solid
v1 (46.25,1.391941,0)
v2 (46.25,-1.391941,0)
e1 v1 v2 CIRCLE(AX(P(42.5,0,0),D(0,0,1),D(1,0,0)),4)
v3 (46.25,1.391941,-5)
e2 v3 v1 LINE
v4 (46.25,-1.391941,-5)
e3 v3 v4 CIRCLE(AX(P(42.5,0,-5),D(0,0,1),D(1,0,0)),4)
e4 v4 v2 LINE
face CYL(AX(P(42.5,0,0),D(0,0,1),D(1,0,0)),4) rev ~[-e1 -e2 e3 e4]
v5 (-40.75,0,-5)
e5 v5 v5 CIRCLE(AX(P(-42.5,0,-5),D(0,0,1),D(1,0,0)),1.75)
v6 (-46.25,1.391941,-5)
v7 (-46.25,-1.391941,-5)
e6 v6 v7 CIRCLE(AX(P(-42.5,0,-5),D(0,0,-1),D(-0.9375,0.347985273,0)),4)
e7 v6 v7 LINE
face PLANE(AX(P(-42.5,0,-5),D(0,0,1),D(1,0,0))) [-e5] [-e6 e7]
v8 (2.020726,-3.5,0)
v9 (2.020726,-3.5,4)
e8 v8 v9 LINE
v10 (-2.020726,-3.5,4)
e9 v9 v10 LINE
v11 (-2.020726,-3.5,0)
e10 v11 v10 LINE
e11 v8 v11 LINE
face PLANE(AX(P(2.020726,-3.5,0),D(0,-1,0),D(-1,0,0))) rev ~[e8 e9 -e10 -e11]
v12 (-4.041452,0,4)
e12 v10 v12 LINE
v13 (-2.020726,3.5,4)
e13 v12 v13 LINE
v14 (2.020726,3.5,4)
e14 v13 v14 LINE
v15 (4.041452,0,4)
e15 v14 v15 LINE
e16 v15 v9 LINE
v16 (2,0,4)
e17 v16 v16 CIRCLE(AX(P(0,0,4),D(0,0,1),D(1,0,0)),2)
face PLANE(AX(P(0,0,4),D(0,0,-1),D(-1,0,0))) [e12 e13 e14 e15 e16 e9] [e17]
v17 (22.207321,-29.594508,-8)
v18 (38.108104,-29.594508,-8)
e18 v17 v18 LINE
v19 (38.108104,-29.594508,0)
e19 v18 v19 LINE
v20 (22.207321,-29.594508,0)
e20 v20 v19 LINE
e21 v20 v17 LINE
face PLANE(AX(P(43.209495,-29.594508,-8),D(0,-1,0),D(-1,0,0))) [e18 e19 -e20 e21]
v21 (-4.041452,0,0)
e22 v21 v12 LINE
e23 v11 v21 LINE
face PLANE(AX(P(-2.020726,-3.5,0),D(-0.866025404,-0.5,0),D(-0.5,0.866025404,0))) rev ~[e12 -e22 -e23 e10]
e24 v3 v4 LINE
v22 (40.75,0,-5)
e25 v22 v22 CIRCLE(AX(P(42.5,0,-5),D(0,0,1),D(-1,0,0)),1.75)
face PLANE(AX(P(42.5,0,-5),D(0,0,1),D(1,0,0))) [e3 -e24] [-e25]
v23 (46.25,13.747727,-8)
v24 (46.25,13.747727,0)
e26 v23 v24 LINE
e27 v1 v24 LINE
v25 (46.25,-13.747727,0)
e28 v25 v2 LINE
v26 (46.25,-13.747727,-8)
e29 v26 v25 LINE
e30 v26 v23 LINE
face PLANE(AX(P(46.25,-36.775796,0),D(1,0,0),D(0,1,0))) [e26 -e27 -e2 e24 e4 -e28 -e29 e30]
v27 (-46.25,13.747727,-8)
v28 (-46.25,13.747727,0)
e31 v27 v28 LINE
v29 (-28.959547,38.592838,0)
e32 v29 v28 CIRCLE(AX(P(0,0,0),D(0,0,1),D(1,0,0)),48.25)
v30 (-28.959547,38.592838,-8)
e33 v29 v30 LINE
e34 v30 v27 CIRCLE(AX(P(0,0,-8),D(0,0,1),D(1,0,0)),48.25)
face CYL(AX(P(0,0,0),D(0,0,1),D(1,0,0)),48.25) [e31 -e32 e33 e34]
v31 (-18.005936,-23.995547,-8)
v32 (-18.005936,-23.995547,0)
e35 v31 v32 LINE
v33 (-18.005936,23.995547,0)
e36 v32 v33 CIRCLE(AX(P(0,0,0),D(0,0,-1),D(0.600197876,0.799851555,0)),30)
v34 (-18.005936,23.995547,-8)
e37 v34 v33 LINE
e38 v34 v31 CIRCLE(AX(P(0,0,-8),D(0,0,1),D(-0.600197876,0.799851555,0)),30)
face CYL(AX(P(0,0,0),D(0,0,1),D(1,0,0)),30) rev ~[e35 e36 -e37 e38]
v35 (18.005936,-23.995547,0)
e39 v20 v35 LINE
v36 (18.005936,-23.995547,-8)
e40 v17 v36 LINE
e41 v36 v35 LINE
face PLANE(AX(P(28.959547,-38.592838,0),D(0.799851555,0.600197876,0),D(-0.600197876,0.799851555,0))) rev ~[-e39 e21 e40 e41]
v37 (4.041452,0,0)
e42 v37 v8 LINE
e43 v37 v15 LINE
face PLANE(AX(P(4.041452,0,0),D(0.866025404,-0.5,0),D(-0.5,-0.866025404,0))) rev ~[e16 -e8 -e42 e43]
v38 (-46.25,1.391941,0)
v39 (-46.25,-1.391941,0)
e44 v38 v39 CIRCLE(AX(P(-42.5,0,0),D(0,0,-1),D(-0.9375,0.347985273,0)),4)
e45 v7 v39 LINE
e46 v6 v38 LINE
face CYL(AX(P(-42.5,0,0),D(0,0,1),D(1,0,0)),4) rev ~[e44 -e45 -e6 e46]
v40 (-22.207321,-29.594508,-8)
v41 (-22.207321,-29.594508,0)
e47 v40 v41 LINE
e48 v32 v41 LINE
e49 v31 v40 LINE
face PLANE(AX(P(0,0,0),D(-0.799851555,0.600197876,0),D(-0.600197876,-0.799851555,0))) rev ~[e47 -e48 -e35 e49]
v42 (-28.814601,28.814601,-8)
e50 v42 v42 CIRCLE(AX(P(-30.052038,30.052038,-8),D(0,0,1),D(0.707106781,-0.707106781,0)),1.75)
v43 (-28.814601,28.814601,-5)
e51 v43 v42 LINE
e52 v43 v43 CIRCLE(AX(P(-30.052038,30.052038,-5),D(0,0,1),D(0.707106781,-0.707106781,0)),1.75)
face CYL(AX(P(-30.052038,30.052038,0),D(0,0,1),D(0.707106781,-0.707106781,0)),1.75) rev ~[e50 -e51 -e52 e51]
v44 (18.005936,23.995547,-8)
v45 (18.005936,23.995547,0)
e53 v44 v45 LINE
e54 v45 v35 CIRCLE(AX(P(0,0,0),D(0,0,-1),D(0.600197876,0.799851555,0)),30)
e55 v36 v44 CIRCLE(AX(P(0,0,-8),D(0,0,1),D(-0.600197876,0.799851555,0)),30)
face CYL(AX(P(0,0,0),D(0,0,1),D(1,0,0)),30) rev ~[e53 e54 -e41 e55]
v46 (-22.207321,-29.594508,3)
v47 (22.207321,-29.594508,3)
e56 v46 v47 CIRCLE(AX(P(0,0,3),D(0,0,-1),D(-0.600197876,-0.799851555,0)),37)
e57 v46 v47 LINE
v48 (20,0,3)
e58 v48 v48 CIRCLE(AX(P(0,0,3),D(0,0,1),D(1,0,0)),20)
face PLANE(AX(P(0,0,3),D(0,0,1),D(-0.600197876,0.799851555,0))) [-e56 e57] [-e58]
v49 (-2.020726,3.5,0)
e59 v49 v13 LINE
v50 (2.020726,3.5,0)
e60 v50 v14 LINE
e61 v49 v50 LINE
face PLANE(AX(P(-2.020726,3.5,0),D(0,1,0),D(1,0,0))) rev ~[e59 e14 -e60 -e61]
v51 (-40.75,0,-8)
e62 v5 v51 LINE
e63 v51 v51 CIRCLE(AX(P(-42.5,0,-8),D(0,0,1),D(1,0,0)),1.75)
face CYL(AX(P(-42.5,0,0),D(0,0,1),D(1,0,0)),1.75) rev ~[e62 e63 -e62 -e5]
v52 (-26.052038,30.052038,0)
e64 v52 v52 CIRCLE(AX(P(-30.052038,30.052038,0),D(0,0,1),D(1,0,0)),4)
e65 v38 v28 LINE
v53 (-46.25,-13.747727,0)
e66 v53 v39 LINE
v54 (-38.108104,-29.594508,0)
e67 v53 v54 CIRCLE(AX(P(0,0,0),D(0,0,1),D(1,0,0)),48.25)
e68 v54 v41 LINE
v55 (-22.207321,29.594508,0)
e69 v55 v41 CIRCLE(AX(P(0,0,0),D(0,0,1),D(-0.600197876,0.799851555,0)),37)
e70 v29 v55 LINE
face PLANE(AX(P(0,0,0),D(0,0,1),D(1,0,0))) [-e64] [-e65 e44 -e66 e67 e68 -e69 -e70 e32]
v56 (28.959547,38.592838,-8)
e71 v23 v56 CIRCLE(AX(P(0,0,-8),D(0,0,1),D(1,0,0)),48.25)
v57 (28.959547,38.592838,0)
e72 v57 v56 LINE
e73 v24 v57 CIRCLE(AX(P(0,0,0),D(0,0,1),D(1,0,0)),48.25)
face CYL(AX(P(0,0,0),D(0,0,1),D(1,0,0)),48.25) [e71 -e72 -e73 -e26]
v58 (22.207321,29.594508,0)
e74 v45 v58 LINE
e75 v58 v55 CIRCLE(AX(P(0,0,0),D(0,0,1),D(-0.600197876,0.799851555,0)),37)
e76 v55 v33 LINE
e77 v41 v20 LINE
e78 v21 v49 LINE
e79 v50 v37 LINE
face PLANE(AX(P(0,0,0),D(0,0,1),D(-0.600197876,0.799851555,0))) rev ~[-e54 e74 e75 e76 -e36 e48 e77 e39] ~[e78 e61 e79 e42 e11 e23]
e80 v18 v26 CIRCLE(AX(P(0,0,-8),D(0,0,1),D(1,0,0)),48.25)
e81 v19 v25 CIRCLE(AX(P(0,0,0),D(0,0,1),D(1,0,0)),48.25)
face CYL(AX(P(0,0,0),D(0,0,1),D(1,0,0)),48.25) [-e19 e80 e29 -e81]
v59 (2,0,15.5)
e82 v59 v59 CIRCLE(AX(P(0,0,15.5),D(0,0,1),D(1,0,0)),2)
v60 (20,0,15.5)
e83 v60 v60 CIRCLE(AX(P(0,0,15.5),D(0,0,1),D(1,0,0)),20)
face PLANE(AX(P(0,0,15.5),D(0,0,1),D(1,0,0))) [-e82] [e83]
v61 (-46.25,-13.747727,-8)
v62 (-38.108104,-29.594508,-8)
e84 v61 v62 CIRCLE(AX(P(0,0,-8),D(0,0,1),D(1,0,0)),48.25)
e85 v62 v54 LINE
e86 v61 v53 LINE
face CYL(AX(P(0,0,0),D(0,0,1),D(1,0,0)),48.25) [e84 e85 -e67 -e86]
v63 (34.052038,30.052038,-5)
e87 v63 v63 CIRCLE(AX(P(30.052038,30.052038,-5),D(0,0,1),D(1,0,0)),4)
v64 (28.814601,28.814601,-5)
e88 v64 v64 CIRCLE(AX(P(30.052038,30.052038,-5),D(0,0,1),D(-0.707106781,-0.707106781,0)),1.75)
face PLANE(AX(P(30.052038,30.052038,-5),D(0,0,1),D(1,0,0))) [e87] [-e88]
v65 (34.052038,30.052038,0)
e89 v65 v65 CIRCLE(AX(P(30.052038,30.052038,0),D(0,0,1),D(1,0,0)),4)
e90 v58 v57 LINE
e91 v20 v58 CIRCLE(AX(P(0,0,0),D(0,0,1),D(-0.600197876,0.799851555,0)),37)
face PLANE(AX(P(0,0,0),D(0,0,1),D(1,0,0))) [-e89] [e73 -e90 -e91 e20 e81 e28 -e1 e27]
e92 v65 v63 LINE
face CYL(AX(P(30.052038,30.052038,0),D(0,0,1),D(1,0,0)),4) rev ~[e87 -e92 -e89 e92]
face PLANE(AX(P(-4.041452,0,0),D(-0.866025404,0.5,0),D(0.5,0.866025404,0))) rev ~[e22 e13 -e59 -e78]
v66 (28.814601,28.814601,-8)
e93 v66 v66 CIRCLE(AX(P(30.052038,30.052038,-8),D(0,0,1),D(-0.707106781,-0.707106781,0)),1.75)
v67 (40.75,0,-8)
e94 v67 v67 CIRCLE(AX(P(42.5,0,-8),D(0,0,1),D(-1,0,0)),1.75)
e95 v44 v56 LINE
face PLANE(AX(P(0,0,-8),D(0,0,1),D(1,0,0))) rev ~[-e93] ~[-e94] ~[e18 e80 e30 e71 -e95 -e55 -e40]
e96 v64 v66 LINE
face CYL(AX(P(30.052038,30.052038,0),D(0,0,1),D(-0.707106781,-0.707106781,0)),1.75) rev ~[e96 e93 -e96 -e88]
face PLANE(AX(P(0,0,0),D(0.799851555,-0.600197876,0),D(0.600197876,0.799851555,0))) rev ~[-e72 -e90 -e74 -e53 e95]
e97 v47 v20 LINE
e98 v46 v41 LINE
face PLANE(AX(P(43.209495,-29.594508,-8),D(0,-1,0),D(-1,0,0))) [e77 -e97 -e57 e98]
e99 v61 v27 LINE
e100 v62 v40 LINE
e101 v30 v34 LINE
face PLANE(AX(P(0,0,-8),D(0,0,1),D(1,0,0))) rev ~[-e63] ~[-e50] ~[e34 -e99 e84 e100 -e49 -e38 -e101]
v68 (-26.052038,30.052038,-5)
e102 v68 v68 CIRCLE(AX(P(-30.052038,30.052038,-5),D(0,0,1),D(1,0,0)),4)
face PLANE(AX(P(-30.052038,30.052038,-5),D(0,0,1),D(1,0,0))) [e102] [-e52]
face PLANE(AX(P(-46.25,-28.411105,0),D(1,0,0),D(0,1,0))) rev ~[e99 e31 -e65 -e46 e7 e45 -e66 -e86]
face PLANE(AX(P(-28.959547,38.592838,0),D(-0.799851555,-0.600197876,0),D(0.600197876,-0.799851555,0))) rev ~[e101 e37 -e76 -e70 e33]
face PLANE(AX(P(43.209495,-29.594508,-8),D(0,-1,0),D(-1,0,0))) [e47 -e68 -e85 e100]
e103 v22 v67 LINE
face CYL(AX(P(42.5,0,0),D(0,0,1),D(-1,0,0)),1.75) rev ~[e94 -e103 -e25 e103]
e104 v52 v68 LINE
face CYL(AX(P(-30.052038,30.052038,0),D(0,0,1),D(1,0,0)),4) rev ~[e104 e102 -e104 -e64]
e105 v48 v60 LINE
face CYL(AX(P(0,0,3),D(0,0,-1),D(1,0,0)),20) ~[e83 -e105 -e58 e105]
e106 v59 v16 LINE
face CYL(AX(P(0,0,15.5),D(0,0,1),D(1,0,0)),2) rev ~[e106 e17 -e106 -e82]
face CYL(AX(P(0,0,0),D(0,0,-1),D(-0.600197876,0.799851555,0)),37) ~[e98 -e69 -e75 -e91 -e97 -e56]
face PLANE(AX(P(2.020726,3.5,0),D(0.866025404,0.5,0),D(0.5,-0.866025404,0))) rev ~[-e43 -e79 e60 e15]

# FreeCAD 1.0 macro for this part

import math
import FreeCAD as App
import Part
import Sketcher

V = App.Vector
Q = App.Units.Quantity

doc = App.newDocument("Part")
body = doc.addObject("PartDesign::Body", "Body")
body.AllowCompound = True

# Sketch on XY plane
sketch1 = doc.addObject("Sketcher::SketchObject", "Sketch")
body.addObject(sketch1)
sketch1.AttachmentSupport = (doc.XY_Plane, [""])
sketch1.MapMode = "FlatFace"
sketch1.addGeometry(Part.Circle(V(0, 0, 0), V(0, 0, 1), 48.25), False)
sketch1.addConstraint([
    Sketcher.Constraint("Coincident", 0, 3, -1, 1),
    Sketcher.Constraint("Diameter", 0, Q("96.5 mm")),
])
pad1 = doc.addObject("PartDesign::Pad", "Pad")
body.addObject(pad1)
pad1.Profile = sketch1
pad1.Length = 8
pad1.Reversed = True

# Sketch on XY plane
sketch2 = doc.addObject("Sketcher::SketchObject", "Sketch001")
body.addObject(sketch2)
sketch2.AttachmentSupport = (doc.XY_Plane, [""])
sketch2.MapMode = "FlatFace"
sketch2.addGeometry([
    Part.LineSegment(V(-63.412038, 28.411105, 0), V(-63.412038, -28.411105, 0)),  # 0
    Part.LineSegment(V(-63.412038, -28.411105, 0), V(-46.25, -28.411105, 0)),  # 1
    Part.LineSegment(V(-46.25, -28.411105, 0), V(-46.25, 28.411105, 0)),  # 2
    Part.LineSegment(V(-46.25, 28.411105, 0), V(-63.412038, 28.411105, 0)),  # 3
    Part.LineSegment(V(46.25, 28.411105, 0), V(46.25, -36.775796, 0)),  # 4
    Part.LineSegment(V(46.25, -36.775796, 0), V(62.402507, -36.775796, 0)),  # 5
    Part.LineSegment(V(62.402507, -36.775796, 0), V(62.402507, 28.411105, 0)),  # 6
    Part.LineSegment(V(62.402507, 28.411105, 0), V(46.25, 28.411105, 0)),  # 7
], False)
sketch2.addConstraint([
    Sketcher.Constraint("Coincident", 0, 2, 1, 1),
    Sketcher.Constraint("Coincident", 1, 2, 2, 1),
    Sketcher.Constraint("Coincident", 2, 2, 3, 1),
    Sketcher.Constraint("Coincident", 3, 2, 0, 1),
    Sketcher.Constraint("Coincident", 4, 2, 5, 1),
    Sketcher.Constraint("Coincident", 5, 2, 6, 1),
    Sketcher.Constraint("Coincident", 6, 2, 7, 1),
    Sketcher.Constraint("Coincident", 7, 2, 4, 1),
    Sketcher.Constraint("Vertical", 0),
    Sketcher.Constraint("Horizontal", 1),
    Sketcher.Constraint("Vertical", 2),
    Sketcher.Constraint("Horizontal", 3),
    Sketcher.Constraint("Vertical", 4),
    Sketcher.Constraint("Horizontal", 5),
    Sketcher.Constraint("Vertical", 6),
    Sketcher.Constraint("Horizontal", 7),
    Sketcher.Constraint("Symmetric", 1, 2, 7, 2, -1, 1),
    Sketcher.Constraint("Horizontal", 3, 2, 6, 2),
    Sketcher.Constraint("DistanceX", 1, 2, 4, 2, Q("92.5 mm")),
    Sketcher.Constraint("DistanceY", 4, 2, 4, 1, Q("65.186901 mm")),
    Sketcher.Constraint("DistanceX", 1, 1, 1, 2, Q("17.162038 mm")),
    Sketcher.Constraint("DistanceY", 0, 2, 0, 1, Q("56.82221 mm")),
    Sketcher.Constraint("DistanceX", 5, 1, 5, 2, Q("16.152507 mm")),
])
pocket1 = doc.addObject("PartDesign::Pocket", "Pocket")
body.addObject(pocket1)
pocket1.Profile = sketch2
pocket1.Length = 8

# Sketch on XY plane
sketch3 = doc.addObject("Sketcher::SketchObject", "Sketch002")
body.addObject(sketch3)
sketch3.AttachmentSupport = (doc.XY_Plane, [""])
sketch3.MapMode = "FlatFace"
sketch3.addGeometry(Part.Circle(V(0, 0, 0), V(0, 0, 1), 30), False)
sketch3.addConstraint([
    Sketcher.Constraint("Coincident", 0, 3, -1, 1),
    Sketcher.Constraint("Diameter", 0, Q("60 mm")),
])
pocket2 = doc.addObject("PartDesign::Pocket", "Pocket001")
body.addObject(pocket2)
pocket2.Profile = sketch3
pocket2.Length = 8

# Sketch on XY plane
sketch4 = doc.addObject("Sketcher::SketchObject", "Sketch003")
body.addObject(sketch4)
sketch4.AttachmentSupport = (doc.XY_Plane, [""])
sketch4.MapMode = "FlatFace"
sketch4.addGeometry(Part.Circle(V(-42.5, 0, 0), V(0, 0, 1), 1.75), False)
sketch4.addConstraint([
    Sketcher.Constraint("PointOnObject", 0, 3, -1),
    Sketcher.Constraint("Diameter", 0, Q("3.5 mm")),
    Sketcher.Constraint("DistanceX", 0, 3, -1, 1, Q("42.5 mm")),
])
pocket3 = doc.addObject("PartDesign::Pocket", "Pocket002")
body.addObject(pocket3)
pocket3.Profile = sketch4
pocket3.Length = 10
doc.recompute()

polarpattern = doc.addObject("PartDesign::PolarPattern", "PolarPattern")
body.addObject(polarpattern)
polarpattern.Originals = [pocket3]
polarpattern.Axis = (doc.Z_Axis, [""])
polarpattern.Angle = 360
polarpattern.Occurrences = 8
body.Tip = polarpattern

# Sketch on XY plane
sketch5 = doc.addObject("Sketcher::SketchObject", "Sketch004")
body.addObject(sketch5)
sketch5.AttachmentSupport = (doc.XY_Plane, [""])
sketch5.MapMode = "FlatFace"
sketch5.addGeometry([
    Part.LineSegment(V(-28.959547, 38.592838, 0), V(0, 0, 0)),
    Part.LineSegment(V(0, 0, 0), V(28.959547, 38.592838, 0)),
    Part.ArcOfCircle(Part.Circle(V(0, 0, 0), V(0, 0, 1), 48.25), math.radians(53.115929), math.radians(126.884071)),
], False)
sketch5.addConstraint([
    Sketcher.Constraint("Coincident", 0, 2, 1, 1),
    Sketcher.Constraint("Coincident", 1, 2, 2, 1),
    Sketcher.Constraint("Coincident", 2, 2, 0, 1),
    Sketcher.Constraint("Coincident", 2, 3, -1, 1),
    Sketcher.Constraint("Coincident", 0, 2, -1, 1),
    Sketcher.Constraint("Horizontal", 1, 2, 2, 2),
    Sketcher.Constraint("Radius", 2, Q("48.25 mm")),
    Sketcher.Constraint("DistanceX", -1, 1, 1, 2, Q("28.959547 mm")),
])
pocket4 = doc.addObject("PartDesign::Pocket", "Pocket003")
body.addObject(pocket4)
pocket4.Profile = sketch5
pocket4.Length = 10
doc.recompute()

polarpattern2 = doc.addObject("PartDesign::PolarPattern", "PolarPattern001")
body.addObject(polarpattern2)
polarpattern2.Originals = [pocket4]
polarpattern2.Axis = (doc.Z_Axis, [""])
polarpattern2.Angle = 360
polarpattern2.Occurrences = 2
body.Tip = polarpattern2

# Sketch on XY plane
sketch6 = doc.addObject("Sketcher::SketchObject", "Sketch005")
body.addObject(sketch6)
sketch6.AttachmentSupport = (doc.XY_Plane, [""])
sketch6.MapMode = "FlatFace"
sketch6.addGeometry([
    Part.Circle(V(42.5, 0, 0), V(0, 0, 1), 4),
    Part.Circle(V(30.052038, 30.052038, 0), V(0, 0, 1), 4),
], False)
sketch6.addConstraint([
    Sketcher.Constraint("Equal", 0, 1),
    Sketcher.Constraint("PointOnObject", 0, 3, -1),
    Sketcher.Constraint("Diameter", 0, Q("8 mm")),
    Sketcher.Constraint("DistanceX", -1, 1, 0, 3, Q("42.5 mm")),
    Sketcher.Constraint("DistanceX", -1, 1, 1, 3, Q("30.052038 mm")),
    Sketcher.Constraint("DistanceY", -1, 1, 1, 3, Q("30.052038 mm")),
])
pocket5 = doc.addObject("PartDesign::Pocket", "Pocket004")
body.addObject(pocket5)
pocket5.Profile = sketch6
pocket5.Length = 5

# Sketch on XY plane
sketch7 = doc.addObject("Sketcher::SketchObject", "Sketch006")
body.addObject(sketch7)
sketch7.AttachmentSupport = (doc.XY_Plane, [""])
sketch7.MapMode = "FlatFace"
sketch7.addGeometry(Part.Circle(V(0, 0, 0), V(0, 0, 1), 37), False)
sketch7.addConstraint([
    Sketcher.Constraint("Coincident", 0, 3, -1, 1),
    Sketcher.Constraint("Diameter", 0, Q("74 mm")),
])
pad2 = doc.addObject("PartDesign::Pad", "Pad001")
body.addObject(pad2)
pad2.Profile = sketch7
pad2.Length = 3

# Sketch on XY plane
sketch8 = doc.addObject("Sketcher::SketchObject", "Sketch007")
body.addObject(sketch8)
sketch8.AttachmentSupport = (doc.XY_Plane, [""])
sketch8.MapMode = "FlatFace"
sketch8.AttachmentOffset = App.Placement(V(0, 0, 3), App.Rotation())
sketch8.addGeometry(Part.Circle(V(0, 0, 0), V(0, 0, 1), 20), False)
sketch8.addConstraint([
    Sketcher.Constraint("Coincident", 0, 3, -1, 1),
    Sketcher.Constraint("Diameter", 0, Q("40 mm")),
])
pad3 = doc.addObject("PartDesign::Pad", "Pad002")
body.addObject(pad3)
pad3.Profile = sketch8
pad3.Length = 12.5

# Sketch on XY plane
sketch9 = doc.addObject("Sketcher::SketchObject", "Sketch008")
body.addObject(sketch9)
sketch9.AttachmentSupport = (doc.XY_Plane, [""])
sketch9.MapMode = "FlatFace"
sketch9.AttachmentOffset = App.Placement(V(0, 0, 15.5), App.Rotation())
sketch9.addGeometry(Part.Circle(V(0, 0, 0), V(0, 0, 1), 2), False)
sketch9.addConstraint([
    Sketcher.Constraint("Coincident", 0, 3, -1, 1),
    Sketcher.Constraint("Diameter", 0, Q("4 mm")),
])
pocket6 = doc.addObject("PartDesign::Pocket", "Pocket005")
body.addObject(pocket6)
pocket6.Profile = sketch9
pocket6.Length = 38

# Sketch on XY plane
sketch10 = doc.addObject("Sketcher::SketchObject", "Sketch009")
body.addObject(sketch10)
sketch10.AttachmentSupport = (doc.XY_Plane, [""])
sketch10.MapMode = "FlatFace"
sketch10.addGeometry([
    Part.LineSegment(V(2.020726, -3.5, 0), V(-2.020726, -3.5, 0)),  # 0
    Part.LineSegment(V(-2.020726, -3.5, 0), V(-4.041452, 0, 0)),  # 1
    Part.LineSegment(V(-4.041452, 0, 0), V(-2.020726, 3.5, 0)),  # 2
    Part.LineSegment(V(-2.020726, 3.5, 0), V(2.020726, 3.5, 0)),  # 3
    Part.LineSegment(V(2.020726, 3.5, 0), V(4.041452, 0, 0)),  # 4
    Part.LineSegment(V(4.041452, 0, 0), V(2.020726, -3.5, 0)),  # 5
], False)
sketch10.addConstraint([
    Sketcher.Constraint("Coincident", 0, 2, 1, 1),
    Sketcher.Constraint("Coincident", 1, 2, 2, 1),
    Sketcher.Constraint("Coincident", 2, 2, 3, 1),
    Sketcher.Constraint("Coincident", 3, 2, 4, 1),
    Sketcher.Constraint("Coincident", 4, 2, 5, 1),
    Sketcher.Constraint("Coincident", 5, 2, 0, 1),
    Sketcher.Constraint("Horizontal", 0),
    Sketcher.Constraint("Horizontal", 3),
    Sketcher.Constraint("Symmetric", 0, 2, 3, 2, -1, 1),
    Sketcher.Constraint("Symmetric", 1, 2, 4, 2, -1, 1),
    Sketcher.Constraint("PointOnObject", 1, 2, -1),
    Sketcher.Constraint("Parallel", 2, 5),
    Sketcher.Constraint("Vertical", 0, 2, 2, 2),
    Sketcher.Constraint("Angle", 1, Q("120 deg")),
    Sketcher.Constraint("DistanceY", 0, 2, 2, 2, Q("7 mm")),
    Sketcher.Constraint("DistanceX", 0, 2, 0, 1, Q("4.041452 mm")),
])
pocket7 = doc.addObject("PartDesign::Pocket", "Pocket006")
body.addObject(pocket7)
pocket7.Profile = sketch10
pocket7.Length = 4
pocket7.Reversed = True

# Sketch on XY plane
sketch11 = doc.addObject("Sketcher::SketchObject", "Sketch010")
body.addObject(sketch11)
sketch11.AttachmentSupport = (doc.XY_Plane, [""])
sketch11.MapMode = "FlatFace"
sketch11.AttachmentOffset = App.Placement(V(0, 0, -8), App.Rotation())
sketch11.addGeometry([
    Part.LineSegment(V(43.209495, -29.594508, 0), V(43.209495, -51.710199, 0)),
    Part.LineSegment(V(43.209495, -51.710199, 0), V(-48.394051, -51.710199, 0)),
    Part.LineSegment(V(-48.394051, -51.710199, 0), V(-48.394051, -29.594508, 0)),
    Part.LineSegment(V(-48.394051, -29.594508, 0), V(43.209495, -29.594508, 0)),
], False)
sketch11.addConstraint([
    Sketcher.Constraint("Coincident", 0, 2, 1, 1),
    Sketcher.Constraint("Coincident", 1, 2, 2, 1),
    Sketcher.Constraint("Coincident", 2, 2, 3, 1),
    Sketcher.Constraint("Coincident", 3, 2, 0, 1),
    Sketcher.Constraint("Vertical", 0),
    Sketcher.Constraint("Horizontal", 1),
    Sketcher.Constraint("Vertical", 2),
    Sketcher.Constraint("Horizontal", 3),
    Sketcher.Constraint("DistanceY", 0, 2, 0, 1, Q("22.115691 mm")),
    Sketcher.Constraint("DistanceY", 0, 2, -1, 1, Q("51.710199 mm")),
    Sketcher.Constraint("DistanceX", 1, 2, 1, 1, Q("91.603546 mm")),
    Sketcher.Constraint("DistanceX", 1, 2, -1, 1, Q("48.394051 mm")),
])
pocket8 = doc.addObject("PartDesign::Pocket", "Pocket007")
body.addObject(pocket8)
pocket8.Profile = sketch11
pocket8.Length = 34
pocket8.Reversed = True

# Sketch on XY plane
sketch12 = doc.addObject("Sketcher::SketchObject", "Sketch011")
body.addObject(sketch12)
sketch12.AttachmentSupport = (doc.XY_Plane, [""])
sketch12.MapMode = "FlatFace"
sketch12.addGeometry([
    Part.Circle(V(-42.5, 0, 0), V(0, 0, 1), 4),
    Part.Circle(V(-30.052038, 30.052038, 0), V(0, 0, 1), 4),
], False)
sketch12.addConstraint([
    Sketcher.Constraint("Equal", 0, 1),
    Sketcher.Constraint("PointOnObject", 0, 3, -1),
    Sketcher.Constraint("Diameter", 0, Q("8 mm")),
    Sketcher.Constraint("DistanceX", 0, 3, -1, 1, Q("42.5 mm")),
    Sketcher.Constraint("DistanceX", 1, 3, -1, 1, Q("30.052038 mm")),
    Sketcher.Constraint("DistanceY", -1, 1, 1, 3, Q("30.052038 mm")),
])
pocket9 = doc.addObject("PartDesign::Pocket", "Pocket008")
body.addObject(pocket9)
pocket9.Profile = sketch12
pocket9.Length = 5

# Sketch on XY plane
sketch13 = doc.addObject("Sketcher::SketchObject", "Sketch012")
body.addObject(sketch13)
sketch13.AttachmentSupport = (doc.XY_Plane, [""])
sketch13.MapMode = "FlatFace"
sketch13.addGeometry([
    Part.LineSegment(V(-33.328607, -27.387338, 0), V(-33.328607, -29.594508, 0)),  # 0
    Part.LineSegment(V(-33.328607, -29.594508, 0), V(-28.362907, -29.594508, 0)),  # 1
    Part.LineSegment(V(-28.362907, -29.594508, 0), V(-28.362907, -27.387338, 0)),  # 2
    Part.LineSegment(V(-28.362907, -27.387338, 0), V(-33.328607, -27.387338, 0)),  # 3
    Part.LineSegment(V(27.667016, -27.387338, 0), V(27.667016, -29.594508, 0)),  # 4
    Part.LineSegment(V(27.667016, -29.594508, 0), V(31.74117, -29.594508, 0)),  # 5
    Part.LineSegment(V(31.74117, -29.594508, 0), V(31.74117, -27.387338, 0)),  # 6
    Part.LineSegment(V(31.74117, -27.387338, 0), V(27.667016, -27.387338, 0)),  # 7
], False)
sketch13.addConstraint([
    Sketcher.Constraint("Coincident", 0, 2, 1, 1),
    Sketcher.Constraint("Coincident", 1, 2, 2, 1),
    Sketcher.Constraint("Coincident", 2, 2, 3, 1),
    Sketcher.Constraint("Coincident", 3, 2, 0, 1),
    Sketcher.Constraint("Coincident", 4, 2, 5, 1),
    Sketcher.Constraint("Coincident", 5, 2, 6, 1),
    Sketcher.Constraint("Coincident", 6, 2, 7, 1),
    Sketcher.Constraint("Coincident", 7, 2, 4, 1),
    Sketcher.Constraint("Vertical", 0),
    Sketcher.Constraint("Horizontal", 1),
    Sketcher.Constraint("Vertical", 2),
    Sketcher.Constraint("Horizontal", 3),
    Sketcher.Constraint("Vertical", 4),
    Sketcher.Constraint("Horizontal", 5),
    Sketcher.Constraint("Vertical", 6),
    Sketcher.Constraint("Horizontal", 7),
    Sketcher.Constraint("Horizontal", 1, 2, 4, 2),
    Sketcher.Constraint("Horizontal", 3, 2, 6, 2),
    Sketcher.Constraint("DistanceX", 1, 1, 1, 2, Q("4.9657 mm")),
    Sketcher.Constraint("DistanceY", 0, 2, 0, 1, Q("2.207169 mm")),
    Sketcher.Constraint("DistanceX", 5, 1, 5, 2, Q("4.074153 mm")),
    Sketcher.Constraint("DistanceY", 2, 2, -1, 1, Q("27.387338 mm")),
    Sketcher.Constraint("DistanceX", -1, 1, 5, 2, Q("31.74117 mm")),
    Sketcher.Constraint("DistanceX", 0, 2, -1, 1, Q("33.328607 mm")),
])
pad4 = doc.addObject("PartDesign::Pad", "Pad003")
body.addObject(pad4)
pad4.Profile = sketch13
pad4.Length = 8
pad4.Reversed = True

doc.recompute()
